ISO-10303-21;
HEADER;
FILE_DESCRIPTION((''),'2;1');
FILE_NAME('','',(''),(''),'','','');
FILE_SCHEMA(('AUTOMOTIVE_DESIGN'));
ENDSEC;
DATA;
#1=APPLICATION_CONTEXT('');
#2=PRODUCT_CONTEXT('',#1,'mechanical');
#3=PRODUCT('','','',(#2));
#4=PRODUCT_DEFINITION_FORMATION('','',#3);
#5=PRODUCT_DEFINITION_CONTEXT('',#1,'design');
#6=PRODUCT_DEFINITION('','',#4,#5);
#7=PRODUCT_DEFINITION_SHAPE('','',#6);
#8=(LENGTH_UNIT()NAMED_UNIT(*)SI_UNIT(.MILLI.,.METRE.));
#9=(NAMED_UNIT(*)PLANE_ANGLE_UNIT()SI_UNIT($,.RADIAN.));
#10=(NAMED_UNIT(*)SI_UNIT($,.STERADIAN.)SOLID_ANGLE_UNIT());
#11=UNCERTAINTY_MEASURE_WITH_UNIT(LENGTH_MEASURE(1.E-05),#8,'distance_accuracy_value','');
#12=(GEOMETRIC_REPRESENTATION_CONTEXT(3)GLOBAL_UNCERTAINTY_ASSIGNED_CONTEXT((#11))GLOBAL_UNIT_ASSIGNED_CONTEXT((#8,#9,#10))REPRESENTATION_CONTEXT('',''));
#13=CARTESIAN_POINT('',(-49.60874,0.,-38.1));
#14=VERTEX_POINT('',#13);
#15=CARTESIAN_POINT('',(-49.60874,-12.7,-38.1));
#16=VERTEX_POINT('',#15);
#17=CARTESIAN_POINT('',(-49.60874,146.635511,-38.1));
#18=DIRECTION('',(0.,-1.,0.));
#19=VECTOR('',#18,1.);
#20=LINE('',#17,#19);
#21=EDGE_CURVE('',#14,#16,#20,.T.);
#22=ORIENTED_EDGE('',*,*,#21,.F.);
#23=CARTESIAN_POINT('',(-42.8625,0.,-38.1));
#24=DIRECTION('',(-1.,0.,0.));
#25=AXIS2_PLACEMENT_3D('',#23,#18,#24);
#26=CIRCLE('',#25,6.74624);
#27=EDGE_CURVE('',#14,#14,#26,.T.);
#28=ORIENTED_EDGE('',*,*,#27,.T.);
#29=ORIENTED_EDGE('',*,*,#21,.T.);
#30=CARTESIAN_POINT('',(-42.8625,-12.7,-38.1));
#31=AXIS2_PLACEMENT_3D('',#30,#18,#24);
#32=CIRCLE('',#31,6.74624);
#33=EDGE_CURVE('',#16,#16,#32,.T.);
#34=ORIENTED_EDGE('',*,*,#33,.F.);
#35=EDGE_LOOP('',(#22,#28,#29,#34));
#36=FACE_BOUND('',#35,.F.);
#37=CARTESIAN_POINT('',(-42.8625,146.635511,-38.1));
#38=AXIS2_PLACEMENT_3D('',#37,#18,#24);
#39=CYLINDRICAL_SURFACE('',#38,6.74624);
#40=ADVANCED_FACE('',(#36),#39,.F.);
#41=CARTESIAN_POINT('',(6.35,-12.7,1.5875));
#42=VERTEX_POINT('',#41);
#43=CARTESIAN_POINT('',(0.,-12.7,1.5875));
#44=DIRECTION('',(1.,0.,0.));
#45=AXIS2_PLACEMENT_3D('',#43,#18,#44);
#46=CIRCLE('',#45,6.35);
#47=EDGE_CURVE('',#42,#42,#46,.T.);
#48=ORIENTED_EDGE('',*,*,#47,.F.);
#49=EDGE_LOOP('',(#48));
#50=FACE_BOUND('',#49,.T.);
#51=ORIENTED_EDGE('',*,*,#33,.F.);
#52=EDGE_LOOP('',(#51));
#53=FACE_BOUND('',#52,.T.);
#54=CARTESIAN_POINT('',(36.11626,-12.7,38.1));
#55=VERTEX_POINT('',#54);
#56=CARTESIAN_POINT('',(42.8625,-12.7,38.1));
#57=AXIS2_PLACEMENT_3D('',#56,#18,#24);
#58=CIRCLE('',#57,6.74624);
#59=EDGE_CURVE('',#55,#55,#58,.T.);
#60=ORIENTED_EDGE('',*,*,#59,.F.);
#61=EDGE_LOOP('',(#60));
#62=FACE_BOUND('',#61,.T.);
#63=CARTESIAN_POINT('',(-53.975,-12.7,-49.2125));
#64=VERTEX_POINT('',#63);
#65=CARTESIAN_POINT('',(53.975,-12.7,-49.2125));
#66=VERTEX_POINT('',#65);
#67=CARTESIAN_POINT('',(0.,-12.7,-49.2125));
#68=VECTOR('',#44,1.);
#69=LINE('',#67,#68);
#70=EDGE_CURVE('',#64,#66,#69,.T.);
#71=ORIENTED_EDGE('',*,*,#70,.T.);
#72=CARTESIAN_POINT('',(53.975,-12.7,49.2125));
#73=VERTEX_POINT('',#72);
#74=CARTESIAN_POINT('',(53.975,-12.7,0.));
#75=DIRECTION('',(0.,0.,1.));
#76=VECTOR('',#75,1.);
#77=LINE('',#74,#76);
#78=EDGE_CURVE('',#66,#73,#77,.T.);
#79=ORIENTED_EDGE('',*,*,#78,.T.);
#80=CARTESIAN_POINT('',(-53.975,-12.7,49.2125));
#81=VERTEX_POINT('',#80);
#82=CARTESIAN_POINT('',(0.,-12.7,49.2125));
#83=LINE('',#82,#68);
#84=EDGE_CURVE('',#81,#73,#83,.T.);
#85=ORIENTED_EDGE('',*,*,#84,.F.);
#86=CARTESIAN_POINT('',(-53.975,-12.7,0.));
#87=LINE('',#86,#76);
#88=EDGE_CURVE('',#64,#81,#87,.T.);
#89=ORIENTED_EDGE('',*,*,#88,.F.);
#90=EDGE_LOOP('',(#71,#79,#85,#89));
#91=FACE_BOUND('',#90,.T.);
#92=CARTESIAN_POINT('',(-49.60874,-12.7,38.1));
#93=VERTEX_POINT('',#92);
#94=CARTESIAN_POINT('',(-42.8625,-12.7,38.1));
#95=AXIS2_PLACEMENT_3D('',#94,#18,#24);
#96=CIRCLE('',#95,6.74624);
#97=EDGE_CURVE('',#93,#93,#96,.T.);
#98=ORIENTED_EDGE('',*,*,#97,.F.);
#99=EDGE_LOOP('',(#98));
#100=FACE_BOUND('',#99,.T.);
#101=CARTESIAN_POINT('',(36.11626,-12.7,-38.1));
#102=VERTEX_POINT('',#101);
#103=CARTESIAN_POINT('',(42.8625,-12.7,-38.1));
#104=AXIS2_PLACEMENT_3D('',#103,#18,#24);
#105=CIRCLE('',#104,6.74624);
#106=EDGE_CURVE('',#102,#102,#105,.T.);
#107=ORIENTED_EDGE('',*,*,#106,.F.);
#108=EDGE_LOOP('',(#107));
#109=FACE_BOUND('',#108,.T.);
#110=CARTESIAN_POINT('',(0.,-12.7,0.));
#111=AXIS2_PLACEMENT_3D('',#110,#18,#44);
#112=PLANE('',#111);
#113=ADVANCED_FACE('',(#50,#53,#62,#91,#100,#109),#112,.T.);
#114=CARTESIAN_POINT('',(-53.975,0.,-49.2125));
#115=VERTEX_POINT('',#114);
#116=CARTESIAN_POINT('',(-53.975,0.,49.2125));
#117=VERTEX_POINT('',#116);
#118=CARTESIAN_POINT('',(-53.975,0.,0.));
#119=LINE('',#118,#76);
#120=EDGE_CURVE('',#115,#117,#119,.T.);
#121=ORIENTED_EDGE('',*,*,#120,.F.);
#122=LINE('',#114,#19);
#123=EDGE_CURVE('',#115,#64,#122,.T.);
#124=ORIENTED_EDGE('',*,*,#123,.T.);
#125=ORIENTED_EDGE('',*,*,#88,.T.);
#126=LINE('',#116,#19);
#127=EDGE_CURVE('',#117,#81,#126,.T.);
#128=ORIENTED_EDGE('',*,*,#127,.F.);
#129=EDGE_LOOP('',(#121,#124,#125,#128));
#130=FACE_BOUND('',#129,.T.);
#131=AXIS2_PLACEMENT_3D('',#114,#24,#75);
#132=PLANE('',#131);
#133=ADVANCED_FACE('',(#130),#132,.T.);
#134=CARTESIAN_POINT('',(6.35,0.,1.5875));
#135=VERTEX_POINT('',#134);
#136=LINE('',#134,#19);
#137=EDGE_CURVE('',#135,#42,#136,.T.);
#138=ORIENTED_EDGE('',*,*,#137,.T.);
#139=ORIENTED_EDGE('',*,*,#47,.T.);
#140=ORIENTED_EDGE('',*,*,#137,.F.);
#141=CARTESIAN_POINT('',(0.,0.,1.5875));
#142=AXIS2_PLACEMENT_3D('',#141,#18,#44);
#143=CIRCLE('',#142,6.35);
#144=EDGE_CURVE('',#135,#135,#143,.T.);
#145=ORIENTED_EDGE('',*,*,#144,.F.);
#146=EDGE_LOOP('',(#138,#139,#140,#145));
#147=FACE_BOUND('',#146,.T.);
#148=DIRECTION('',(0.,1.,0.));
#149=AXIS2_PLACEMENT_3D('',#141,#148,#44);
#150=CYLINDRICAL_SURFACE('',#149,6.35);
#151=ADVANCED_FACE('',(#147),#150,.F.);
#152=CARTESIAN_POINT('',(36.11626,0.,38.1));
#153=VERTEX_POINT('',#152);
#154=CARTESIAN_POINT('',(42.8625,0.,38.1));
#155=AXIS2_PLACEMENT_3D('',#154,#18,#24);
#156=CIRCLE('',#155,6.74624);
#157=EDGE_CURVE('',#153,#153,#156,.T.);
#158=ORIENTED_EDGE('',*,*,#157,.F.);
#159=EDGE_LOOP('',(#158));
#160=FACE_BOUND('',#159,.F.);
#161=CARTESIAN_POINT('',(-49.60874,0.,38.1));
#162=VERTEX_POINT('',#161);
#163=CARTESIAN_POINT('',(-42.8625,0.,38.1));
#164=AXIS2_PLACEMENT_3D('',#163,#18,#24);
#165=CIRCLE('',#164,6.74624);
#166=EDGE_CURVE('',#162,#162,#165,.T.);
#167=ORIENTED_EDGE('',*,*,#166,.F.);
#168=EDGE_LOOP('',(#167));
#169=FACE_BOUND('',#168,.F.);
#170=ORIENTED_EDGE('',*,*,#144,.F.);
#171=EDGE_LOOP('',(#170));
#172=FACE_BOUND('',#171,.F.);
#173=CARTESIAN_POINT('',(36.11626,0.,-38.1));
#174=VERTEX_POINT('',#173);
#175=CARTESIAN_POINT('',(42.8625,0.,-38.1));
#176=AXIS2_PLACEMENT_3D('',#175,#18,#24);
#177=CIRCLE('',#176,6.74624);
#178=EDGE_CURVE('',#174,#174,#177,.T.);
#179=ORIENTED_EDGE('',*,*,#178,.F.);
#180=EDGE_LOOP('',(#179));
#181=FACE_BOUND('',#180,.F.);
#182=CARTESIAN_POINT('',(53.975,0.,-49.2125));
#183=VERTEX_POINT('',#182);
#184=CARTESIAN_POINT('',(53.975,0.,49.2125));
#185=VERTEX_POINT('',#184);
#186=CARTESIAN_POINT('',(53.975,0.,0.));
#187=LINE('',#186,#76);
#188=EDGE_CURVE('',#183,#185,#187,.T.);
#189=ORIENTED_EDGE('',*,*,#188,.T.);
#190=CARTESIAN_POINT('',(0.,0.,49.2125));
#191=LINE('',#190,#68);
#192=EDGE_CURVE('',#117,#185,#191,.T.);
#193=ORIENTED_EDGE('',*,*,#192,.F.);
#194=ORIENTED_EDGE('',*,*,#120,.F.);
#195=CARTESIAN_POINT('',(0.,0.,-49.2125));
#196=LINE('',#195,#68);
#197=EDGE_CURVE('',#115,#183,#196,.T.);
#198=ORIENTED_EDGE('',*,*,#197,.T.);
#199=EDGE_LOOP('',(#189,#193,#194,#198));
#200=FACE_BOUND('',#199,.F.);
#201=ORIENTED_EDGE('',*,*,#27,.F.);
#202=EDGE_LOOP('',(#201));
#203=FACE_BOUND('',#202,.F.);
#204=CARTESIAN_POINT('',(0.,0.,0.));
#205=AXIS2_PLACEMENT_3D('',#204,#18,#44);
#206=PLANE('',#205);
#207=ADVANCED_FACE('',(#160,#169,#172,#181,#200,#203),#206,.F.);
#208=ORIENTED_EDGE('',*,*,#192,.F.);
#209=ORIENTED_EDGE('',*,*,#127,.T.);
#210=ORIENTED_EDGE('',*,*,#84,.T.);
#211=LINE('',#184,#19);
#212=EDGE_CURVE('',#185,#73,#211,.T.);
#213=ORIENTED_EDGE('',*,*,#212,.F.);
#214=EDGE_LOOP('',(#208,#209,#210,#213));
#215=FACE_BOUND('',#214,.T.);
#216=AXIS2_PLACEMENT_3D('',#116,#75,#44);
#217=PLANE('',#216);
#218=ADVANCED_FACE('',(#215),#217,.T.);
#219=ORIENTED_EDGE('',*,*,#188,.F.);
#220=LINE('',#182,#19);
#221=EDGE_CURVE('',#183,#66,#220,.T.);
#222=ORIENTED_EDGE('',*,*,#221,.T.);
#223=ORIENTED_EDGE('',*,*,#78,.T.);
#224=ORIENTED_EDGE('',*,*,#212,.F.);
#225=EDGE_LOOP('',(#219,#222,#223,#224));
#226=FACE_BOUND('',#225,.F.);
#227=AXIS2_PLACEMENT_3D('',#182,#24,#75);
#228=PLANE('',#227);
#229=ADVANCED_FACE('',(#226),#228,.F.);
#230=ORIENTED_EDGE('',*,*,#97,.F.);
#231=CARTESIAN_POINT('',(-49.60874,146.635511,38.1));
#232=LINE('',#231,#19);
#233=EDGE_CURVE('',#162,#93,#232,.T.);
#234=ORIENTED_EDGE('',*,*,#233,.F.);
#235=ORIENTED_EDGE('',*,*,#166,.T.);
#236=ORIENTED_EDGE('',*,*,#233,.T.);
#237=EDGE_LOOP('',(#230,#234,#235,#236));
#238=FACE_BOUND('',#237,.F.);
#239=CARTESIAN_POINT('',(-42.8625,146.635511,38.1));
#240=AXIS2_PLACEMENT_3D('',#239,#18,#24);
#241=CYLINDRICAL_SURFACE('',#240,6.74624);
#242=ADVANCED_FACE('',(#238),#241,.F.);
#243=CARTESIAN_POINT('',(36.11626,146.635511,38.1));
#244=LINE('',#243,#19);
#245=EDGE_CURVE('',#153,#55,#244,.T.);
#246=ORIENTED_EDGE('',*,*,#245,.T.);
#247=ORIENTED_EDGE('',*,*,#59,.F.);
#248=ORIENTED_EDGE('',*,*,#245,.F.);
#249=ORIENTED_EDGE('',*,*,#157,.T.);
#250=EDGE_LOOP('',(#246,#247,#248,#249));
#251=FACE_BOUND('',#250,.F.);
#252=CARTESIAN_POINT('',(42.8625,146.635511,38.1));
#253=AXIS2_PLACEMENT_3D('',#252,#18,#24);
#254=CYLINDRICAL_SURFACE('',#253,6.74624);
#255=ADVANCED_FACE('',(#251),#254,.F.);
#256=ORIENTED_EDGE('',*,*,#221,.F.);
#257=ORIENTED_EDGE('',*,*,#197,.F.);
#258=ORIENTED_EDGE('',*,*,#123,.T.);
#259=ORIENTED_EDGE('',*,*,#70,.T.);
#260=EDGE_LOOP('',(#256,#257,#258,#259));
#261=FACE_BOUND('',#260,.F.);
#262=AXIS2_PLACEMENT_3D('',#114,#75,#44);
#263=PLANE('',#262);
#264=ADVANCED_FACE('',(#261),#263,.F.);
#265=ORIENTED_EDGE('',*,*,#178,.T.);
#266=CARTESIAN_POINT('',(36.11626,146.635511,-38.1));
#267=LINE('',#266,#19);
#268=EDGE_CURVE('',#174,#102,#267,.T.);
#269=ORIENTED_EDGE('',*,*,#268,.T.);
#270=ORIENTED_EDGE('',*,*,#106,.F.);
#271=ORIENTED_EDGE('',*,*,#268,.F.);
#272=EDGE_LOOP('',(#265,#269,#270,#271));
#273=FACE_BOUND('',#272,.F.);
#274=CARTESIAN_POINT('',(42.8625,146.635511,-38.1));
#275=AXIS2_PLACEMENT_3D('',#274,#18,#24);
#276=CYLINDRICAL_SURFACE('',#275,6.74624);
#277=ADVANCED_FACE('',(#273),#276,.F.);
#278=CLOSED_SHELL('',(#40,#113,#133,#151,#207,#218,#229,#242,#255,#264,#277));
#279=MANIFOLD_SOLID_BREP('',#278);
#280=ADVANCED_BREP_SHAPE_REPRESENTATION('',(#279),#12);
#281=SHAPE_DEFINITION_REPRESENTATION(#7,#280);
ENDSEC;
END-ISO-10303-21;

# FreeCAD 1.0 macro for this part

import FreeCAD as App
import Part
import Sketcher
from FreeCAD import Vector
Q = App.Units.Quantity


def add_polygon(sketch, points):
    """Adds a closed chain of lines whose ends are joined by coincident constraints."""
    first, n = sketch.GeometryCount, len(points)
    for a, b in zip(points, points[1:] + points[:1]):
        sketch.addGeometry(Part.LineSegment(App.Vector(*a, 0), App.Vector(*b, 0)), False)
    for i in range(n):
        sketch.addConstraint(Sketcher.Constraint("Coincident", first + i, 2, first + (i + 1) % n, 1))

doc = App.newDocument("Part")
params = doc.addObject("Spreadsheet::Sheet", "Params")
for row, (alias, value) in enumerate([
    ("sketch1_diameter", "0.5 in"),
    ("sketch1_width", "4.25 in"),
    ("sketch1_height", "3.875 in"),
    ("pad1_length", "0.5 in"),
    ("hole_diameter", "0.5312 in"),
], start=1):
    params.set(f"A{row}", alias)
    params.set(f"B{row}", "=" + value)
    params.setAlias(f"B{row}", alias)

body = doc.addObject("PartDesign::Body", "Body")

# Sketch on XZ plane
sketch1 = body.newObject("Sketcher::SketchObject", "Sketch")
sketch1.AttachmentSupport = (doc.getObject("XZ_Plane"), [""])
sketch1.MapMode = "FlatFace"
add_polygon(sketch1, [(-54, 49), (-54, -49), (54, -49), (54, 49)])  # lines 0-3
sketch1.addGeometry(Part.Circle(Vector(0, 2, 0), Vector(0, 0, 1), 6), False)  # 4
sketch1.addConstraint([
    Sketcher.Constraint("Vertical", 0),
    Sketcher.Constraint("Horizontal", 1),
    Sketcher.Constraint("Vertical", 2),
    Sketcher.Constraint("Horizontal", 3),
    Sketcher.Constraint("Symmetric", 0, 2, 2, 2, -1, 1),
    Sketcher.Constraint("PointOnObject", 4, 3, -2),
    Sketcher.Constraint("Diameter", 4, Q("0.5 in")),
    Sketcher.Constraint("DistanceY", 0, 2, 4, 3, Q("2 in")),
    Sketcher.Constraint("DistanceX", 1, 1, 1, 2, Q("4.25 in")),
    Sketcher.Constraint("DistanceY", 0, 2, 0, 1, Q("3.875 in")),
])
sketch1.setExpression("Constraints[10]", "Params.sketch1_diameter")
sketch1.setExpression("Constraints[12]", "Params.sketch1_width")
sketch1.setExpression("Constraints[13]", "Params.sketch1_height")
pad1 = body.newObject("PartDesign::Pad", "Pad")
pad1.Profile = sketch1
pad1.setExpression("Length", "Params.pad1_length")

# Sketch on XZ plane
sketch2 = body.newObject("Sketcher::SketchObject", "Sketch001")
sketch2.AttachmentSupport = (doc.getObject("XZ_Plane"), [""])
sketch2.MapMode = "FlatFace"
sketch2.addGeometry([
    Part.Circle(Vector(-43, 38, 0), Vector(0, 0, 1), 7),
    Part.Circle(Vector(43, 38, 0), Vector(0, 0, 1), 7),
    Part.Circle(Vector(43, -38, 0), Vector(0, 0, 1), 7),
    Part.Circle(Vector(-43, -38, 0), Vector(0, 0, 1), 7),
], False)
sketch2.addConstraint([
    Sketcher.Constraint("Equal", 0, 1),
    Sketcher.Constraint("Equal", 1, 2),
    Sketcher.Constraint("Equal", 2, 3),
    Sketcher.Constraint("Symmetric", 0, 3, 2, 3, -1, 1),
    Sketcher.Constraint("Symmetric", 1, 3, 3, 3, -1, 1),
    Sketcher.Constraint("Symmetric", 0, 3, 1, 3, -2),
    Sketcher.Constraint("DistanceY", 2, 3, 1, 3, Q("3 in")),
    Sketcher.Constraint("Diameter", 0, Q("0.5312 in")),
    Sketcher.Constraint("DistanceX", 0, 3, -1, 1, Q("1.6875 in")),
])
doc.recompute()
hole = body.newObject("PartDesign::Hole", "Hole")
hole.Profile = sketch2
hole.ThreadType = "None"
hole.setExpression("Diameter", "Params.hole_diameter")
hole.DepthType = "ThroughAll"
hole.Reversed = True

doc.recompute()
